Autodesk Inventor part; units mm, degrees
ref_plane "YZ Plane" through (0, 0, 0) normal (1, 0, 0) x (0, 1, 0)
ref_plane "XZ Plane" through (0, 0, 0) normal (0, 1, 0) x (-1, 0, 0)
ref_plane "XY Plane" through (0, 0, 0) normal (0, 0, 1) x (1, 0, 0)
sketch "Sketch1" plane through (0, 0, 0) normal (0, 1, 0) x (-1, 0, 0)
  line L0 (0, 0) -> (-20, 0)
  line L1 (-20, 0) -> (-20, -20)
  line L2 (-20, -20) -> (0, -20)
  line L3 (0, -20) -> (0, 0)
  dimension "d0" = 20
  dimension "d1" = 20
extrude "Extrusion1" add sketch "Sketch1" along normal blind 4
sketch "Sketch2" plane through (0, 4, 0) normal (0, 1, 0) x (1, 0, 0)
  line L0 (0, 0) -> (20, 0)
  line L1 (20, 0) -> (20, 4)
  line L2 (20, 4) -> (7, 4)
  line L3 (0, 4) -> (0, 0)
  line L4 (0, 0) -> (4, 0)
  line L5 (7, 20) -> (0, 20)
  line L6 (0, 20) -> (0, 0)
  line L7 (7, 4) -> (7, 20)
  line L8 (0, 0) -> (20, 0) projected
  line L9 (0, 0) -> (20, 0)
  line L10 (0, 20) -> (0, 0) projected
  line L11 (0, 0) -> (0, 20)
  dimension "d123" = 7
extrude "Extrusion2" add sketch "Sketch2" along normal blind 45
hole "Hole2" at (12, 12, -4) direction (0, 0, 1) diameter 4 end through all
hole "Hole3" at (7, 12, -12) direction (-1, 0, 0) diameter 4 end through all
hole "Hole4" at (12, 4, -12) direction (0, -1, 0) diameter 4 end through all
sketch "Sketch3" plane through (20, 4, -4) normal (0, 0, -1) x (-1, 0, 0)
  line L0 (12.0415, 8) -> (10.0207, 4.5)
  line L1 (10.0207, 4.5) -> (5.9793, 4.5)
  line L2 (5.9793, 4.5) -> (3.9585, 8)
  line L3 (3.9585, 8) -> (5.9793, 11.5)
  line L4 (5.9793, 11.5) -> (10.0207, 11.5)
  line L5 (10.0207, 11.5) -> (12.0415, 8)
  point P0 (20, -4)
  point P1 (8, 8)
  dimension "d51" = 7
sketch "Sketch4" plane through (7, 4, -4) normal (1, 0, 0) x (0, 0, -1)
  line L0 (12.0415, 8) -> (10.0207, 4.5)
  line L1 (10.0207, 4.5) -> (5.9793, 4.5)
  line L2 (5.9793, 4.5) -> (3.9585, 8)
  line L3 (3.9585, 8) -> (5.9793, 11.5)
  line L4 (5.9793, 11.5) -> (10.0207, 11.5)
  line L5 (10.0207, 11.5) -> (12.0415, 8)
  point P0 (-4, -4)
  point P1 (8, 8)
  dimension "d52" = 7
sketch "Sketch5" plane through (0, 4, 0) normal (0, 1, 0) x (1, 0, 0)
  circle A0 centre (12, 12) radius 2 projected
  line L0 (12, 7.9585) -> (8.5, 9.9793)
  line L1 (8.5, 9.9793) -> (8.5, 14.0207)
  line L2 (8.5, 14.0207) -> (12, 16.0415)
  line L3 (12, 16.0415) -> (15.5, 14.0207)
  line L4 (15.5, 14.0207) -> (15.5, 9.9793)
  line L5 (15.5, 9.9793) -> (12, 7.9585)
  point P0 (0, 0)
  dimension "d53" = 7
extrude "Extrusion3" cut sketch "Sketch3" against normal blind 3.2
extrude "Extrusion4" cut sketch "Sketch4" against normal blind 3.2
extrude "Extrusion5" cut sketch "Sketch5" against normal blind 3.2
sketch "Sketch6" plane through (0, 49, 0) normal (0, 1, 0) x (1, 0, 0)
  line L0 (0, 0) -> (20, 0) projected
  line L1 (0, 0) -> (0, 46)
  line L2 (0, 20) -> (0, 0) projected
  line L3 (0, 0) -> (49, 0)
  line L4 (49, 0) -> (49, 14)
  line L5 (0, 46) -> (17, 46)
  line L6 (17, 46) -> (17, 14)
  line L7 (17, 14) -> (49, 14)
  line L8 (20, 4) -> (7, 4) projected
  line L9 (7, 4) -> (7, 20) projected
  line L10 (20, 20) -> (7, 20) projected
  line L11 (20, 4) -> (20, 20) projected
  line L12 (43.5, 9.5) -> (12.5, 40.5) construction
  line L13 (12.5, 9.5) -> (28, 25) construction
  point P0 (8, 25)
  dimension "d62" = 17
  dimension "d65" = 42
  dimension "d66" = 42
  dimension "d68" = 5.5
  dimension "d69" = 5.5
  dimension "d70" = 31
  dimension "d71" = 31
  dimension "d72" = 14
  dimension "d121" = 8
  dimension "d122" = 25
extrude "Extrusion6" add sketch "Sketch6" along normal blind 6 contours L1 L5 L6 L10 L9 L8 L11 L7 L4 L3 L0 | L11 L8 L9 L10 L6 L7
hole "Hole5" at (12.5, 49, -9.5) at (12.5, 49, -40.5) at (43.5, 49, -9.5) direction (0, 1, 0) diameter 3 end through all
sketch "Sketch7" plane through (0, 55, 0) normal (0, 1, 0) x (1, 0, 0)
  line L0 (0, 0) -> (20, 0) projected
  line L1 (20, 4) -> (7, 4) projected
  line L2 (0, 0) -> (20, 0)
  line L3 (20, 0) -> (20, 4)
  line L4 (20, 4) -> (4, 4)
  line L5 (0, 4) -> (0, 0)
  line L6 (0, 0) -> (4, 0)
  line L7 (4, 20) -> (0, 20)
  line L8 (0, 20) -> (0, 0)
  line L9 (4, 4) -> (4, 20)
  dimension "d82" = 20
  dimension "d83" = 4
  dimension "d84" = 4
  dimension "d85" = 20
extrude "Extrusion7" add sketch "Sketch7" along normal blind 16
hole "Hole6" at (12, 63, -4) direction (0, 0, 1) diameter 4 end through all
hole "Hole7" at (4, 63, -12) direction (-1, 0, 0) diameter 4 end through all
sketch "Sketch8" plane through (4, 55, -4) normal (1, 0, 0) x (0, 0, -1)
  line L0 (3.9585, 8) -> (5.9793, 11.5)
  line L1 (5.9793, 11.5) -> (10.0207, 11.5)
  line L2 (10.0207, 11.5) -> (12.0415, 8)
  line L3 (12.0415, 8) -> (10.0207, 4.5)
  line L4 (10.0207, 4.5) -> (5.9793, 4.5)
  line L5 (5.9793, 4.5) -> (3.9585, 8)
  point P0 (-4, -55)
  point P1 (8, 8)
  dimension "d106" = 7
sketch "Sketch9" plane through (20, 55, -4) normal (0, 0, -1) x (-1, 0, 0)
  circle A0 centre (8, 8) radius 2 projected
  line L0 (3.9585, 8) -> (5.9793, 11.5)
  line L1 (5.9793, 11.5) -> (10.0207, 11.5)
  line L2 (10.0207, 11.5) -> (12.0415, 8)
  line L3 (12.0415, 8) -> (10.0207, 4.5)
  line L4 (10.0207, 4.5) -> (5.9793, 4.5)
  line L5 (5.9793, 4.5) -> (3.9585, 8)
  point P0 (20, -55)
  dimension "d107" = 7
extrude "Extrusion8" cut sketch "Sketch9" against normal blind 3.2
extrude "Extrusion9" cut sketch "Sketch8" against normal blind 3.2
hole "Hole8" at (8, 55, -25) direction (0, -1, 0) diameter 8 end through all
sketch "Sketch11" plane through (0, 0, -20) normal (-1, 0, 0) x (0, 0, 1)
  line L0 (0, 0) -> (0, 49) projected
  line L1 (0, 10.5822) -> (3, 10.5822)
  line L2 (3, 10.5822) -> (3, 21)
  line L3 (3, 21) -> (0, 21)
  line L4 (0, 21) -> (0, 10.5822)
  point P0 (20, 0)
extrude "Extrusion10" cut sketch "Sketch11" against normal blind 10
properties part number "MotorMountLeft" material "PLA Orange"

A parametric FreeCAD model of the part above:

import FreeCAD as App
import Part
import Sketcher
from FreeCAD import Vector
Q = App.Units.Quantity

doc = App.newDocument("Part")
body = doc.addObject("PartDesign::Body", "Body")

sketch1 = body.newObject("Sketcher::SketchObject", "Sketch")
sketch1.AttachmentSupport = (doc.getObject("XZ_Plane"), [""])
sketch1.MapMode = "FlatFace"
sketch1.addGeometry(Part.LineSegment(Vector(0, -20, 0), Vector(0, 0, 0)), False)
sketch1.addGeometry(Part.LineSegment(Vector(0, 0, 0), Vector(20, 0, 0)), False)
sketch1.addGeometry(Part.LineSegment(Vector(20, 0, 0), Vector(20, -20, 0)), False)
sketch1.addGeometry(Part.LineSegment(Vector(20, -20, 0), Vector(0, -20, 0)), False)
sketch1.addConstraint(Sketcher.Constraint("Coincident", 0, 2, 1, 1))
sketch1.addConstraint(Sketcher.Constraint("Coincident", 1, 2, 2, 1))
sketch1.addConstraint(Sketcher.Constraint("Coincident", 2, 2, 3, 1))
sketch1.addConstraint(Sketcher.Constraint("Coincident", 3, 2, 0, 1))
sketch1.addConstraint(Sketcher.Constraint("Vertical", 0))
sketch1.addConstraint(Sketcher.Constraint("Horizontal", 1))
sketch1.addConstraint(Sketcher.Constraint("Vertical", 2))
sketch1.addConstraint(Sketcher.Constraint("Horizontal", 3))
sketch1.addConstraint(Sketcher.Constraint("Coincident", 0, 2, -1, 1))
sketch1.addConstraint(Sketcher.Constraint("Equal", 3, 0))
sketch1.addConstraint(Sketcher.Constraint("DistanceX", 1, 1, 1, 2, Q("20 mm")))
pad1 = body.newObject("PartDesign::Pad", "Pad")
pad1.Profile = sketch1
pad1.Length = 4
pad1.Reversed = True

sketch2 = body.newObject("Sketcher::SketchObject", "Sketch001")
sketch2.AttachmentSupport = (doc.getObject("XZ_Plane"), [""])
sketch2.MapMode = "FlatFace"
sketch2.AttachmentOffset = App.Placement(Vector(0, 0, -4), App.Rotation())
sketch2.addGeometry(Part.LineSegment(Vector(0, -20, 0), Vector(0, 0, 0)), False)
sketch2.addGeometry(Part.LineSegment(Vector(0, 0, 0), Vector(20, 0, 0)), False)
sketch2.addGeometry(Part.LineSegment(Vector(20, 0, 0), Vector(20, -4, 0)), False)
sketch2.addGeometry(Part.LineSegment(Vector(20, -4, 0), Vector(7, -4, 0)), False)
sketch2.addGeometry(Part.LineSegment(Vector(7, -4, 0), Vector(7, -20, 0)), False)
sketch2.addGeometry(Part.LineSegment(Vector(7, -20, 0), Vector(0, -20, 0)), False)
sketch2.addConstraint(Sketcher.Constraint("Coincident", 0, 2, 1, 1))
sketch2.addConstraint(Sketcher.Constraint("Coincident", 1, 2, 2, 1))
sketch2.addConstraint(Sketcher.Constraint("Coincident", 2, 2, 3, 1))
sketch2.addConstraint(Sketcher.Constraint("Coincident", 3, 2, 4, 1))
sketch2.addConstraint(Sketcher.Constraint("Coincident", 4, 2, 5, 1))
sketch2.addConstraint(Sketcher.Constraint("Coincident", 5, 2, 0, 1))
sketch2.addConstraint(Sketcher.Constraint("Vertical", 0))
sketch2.addConstraint(Sketcher.Constraint("Horizontal", 1))
sketch2.addConstraint(Sketcher.Constraint("Vertical", 2))
sketch2.addConstraint(Sketcher.Constraint("Horizontal", 3))
sketch2.addConstraint(Sketcher.Constraint("Vertical", 4))
sketch2.addConstraint(Sketcher.Constraint("Horizontal", 5))
sketch2.addConstraint(Sketcher.Constraint("Coincident", 0, 2, -1, 1))
sketch2.addConstraint(Sketcher.Constraint("Equal", 1, 0))
sketch2.addConstraint(Sketcher.Constraint("DistanceX", 5, 2, 5, 1, Q("7 mm")))
sketch2.addConstraint(Sketcher.Constraint("DistanceX", 1, 1, 1, 2, Q("20 mm")))
sketch2.addConstraint(Sketcher.Constraint("DistanceY", 2, 2, 2, 1, Q("4 mm")))
pad2 = body.newObject("PartDesign::Pad", "Pad001")
pad2.Profile = sketch2
pad2.Length = 45
pad2.Reversed = True

sketch3 = body.newObject("Sketcher::SketchObject", "Sketch002")
sketch3.AttachmentSupport = (doc.getObject("XY_Plane"), [""])
sketch3.MapMode = "FlatFace"
sketch3.AttachmentOffset = App.Placement(Vector(0, 0, -4), App.Rotation())
sketch3.addGeometry(Part.Circle(Vector(12, 12, 0), Vector(0, 0, 1), 2), False)
sketch3.addConstraint(Sketcher.Constraint("Diameter", 0, Q("4 mm")))
sketch3.addConstraint(Sketcher.Constraint("DistanceX", -1, 1, 0, 3, Q("12 mm")))
sketch3.addConstraint(Sketcher.Constraint("DistanceY", -1, 1, 0, 3, Q("12 mm")))
doc.recompute()
hole = body.newObject("PartDesign::Hole", "Hole")
hole.Profile = sketch3
hole.ThreadType = "None"
hole.Diameter = 4
hole.DepthType = "ThroughAll"
hole.Reversed = True

sketch4 = body.newObject("Sketcher::SketchObject", "Sketch003")
sketch4.AttachmentSupport = (doc.getObject("YZ_Plane"), [""])
sketch4.MapMode = "FlatFace"
sketch4.AttachmentOffset = App.Placement(Vector(0, 0, 7), App.Rotation())
sketch4.addGeometry(Part.Circle(Vector(12, -12, 0), Vector(0, 0, 1), 2), False)
sketch4.addConstraint(Sketcher.Constraint("Diameter", 0, Q("4 mm")))
sketch4.addConstraint(Sketcher.Constraint("DistanceX", -1, 1, 0, 3, Q("12 mm")))
sketch4.addConstraint(Sketcher.Constraint("DistanceY", 0, 3, -1, 1, Q("12 mm")))
doc.recompute()
hole2 = body.newObject("PartDesign::Hole", "Hole001")
hole2.Profile = sketch4
hole2.ThreadType = "None"
hole2.Diameter = 4
hole2.DepthType = "ThroughAll"

sketch5 = body.newObject("Sketcher::SketchObject", "Sketch004")
sketch5.AttachmentSupport = (doc.getObject("XZ_Plane"), [""])
sketch5.MapMode = "FlatFace"
sketch5.AttachmentOffset = App.Placement(Vector(0, 0, -4), App.Rotation())
sketch5.addGeometry(Part.Circle(Vector(12, -12, 0), Vector(0, 0, 1), 2), False)
sketch5.addConstraint(Sketcher.Constraint("Diameter", 0, Q("4 mm")))
sketch5.addConstraint(Sketcher.Constraint("DistanceX", -1, 1, 0, 3, Q("12 mm")))
sketch5.addConstraint(Sketcher.Constraint("DistanceY", 0, 3, -1, 1, Q("12 mm")))
doc.recompute()
hole3 = body.newObject("PartDesign::Hole", "Hole002")
hole3.Profile = sketch5
hole3.ThreadType = "None"
hole3.Diameter = 4
hole3.DepthType = "ThroughAll"
hole3.Reversed = True

sketch6 = body.newObject("Sketcher::SketchObject", "Sketch005")
sketch6.AttachmentSupport = (doc.getObject("XY_Plane"), [""])
sketch6.MapMode = "FlatFace"
sketch6.AttachmentOffset = App.Placement(Vector(0, 0, -4), App.Rotation())
sketch6.addGeometry(Part.LineSegment(Vector(9.9793, 8.5, 0), Vector(7.9585, 12, 0)), False)
sketch6.addGeometry(Part.LineSegment(Vector(7.9585, 12, 0), Vector(9.9793, 15.5, 0)), False)
sketch6.addGeometry(Part.LineSegment(Vector(9.9793, 15.5, 0), Vector(14.0207, 15.5, 0)), False)
sketch6.addGeometry(Part.LineSegment(Vector(14.0207, 15.5, 0), Vector(16.0415, 12, 0)), False)
sketch6.addGeometry(Part.LineSegment(Vector(16.0415, 12, 0), Vector(14.0207, 8.5, 0)), False)
sketch6.addGeometry(Part.LineSegment(Vector(14.0207, 8.5, 0), Vector(9.9793, 8.5, 0)), False)
sketch6.addConstraint(Sketcher.Constraint("Coincident", 0, 2, 1, 1))
sketch6.addConstraint(Sketcher.Constraint("Coincident", 1, 2, 2, 1))
sketch6.addConstraint(Sketcher.Constraint("Coincident", 2, 2, 3, 1))
sketch6.addConstraint(Sketcher.Constraint("Coincident", 3, 2, 4, 1))
sketch6.addConstraint(Sketcher.Constraint("Coincident", 4, 2, 5, 1))
sketch6.addConstraint(Sketcher.Constraint("Coincident", 5, 2, 0, 1))
sketch6.addConstraint(Sketcher.Constraint("Horizontal", 2))
sketch6.addConstraint(Sketcher.Constraint("Horizontal", 5))
sketch6.addConstraint(Sketcher.Constraint("Parallel", 0, 3))
sketch6.addConstraint(Sketcher.Constraint("Parallel", 1, 4))
sketch6.addConstraint(Sketcher.Constraint("Horizontal", 0, 2, 3, 2))
sketch6.addConstraint(Sketcher.Constraint("Vertical", 2, 2, 4, 2))
sketch6.addConstraint(Sketcher.Constraint("Vertical", 1, 2, 5, 2))
sketch6.addConstraint(Sketcher.Constraint("DistanceY", 4, 2, 2, 2, Q("7 mm")))
sketch6.addConstraint(Sketcher.Constraint("Angle", 0, Q("120.001 deg")))
sketch6.addConstraint(Sketcher.Constraint("DistanceY", -1, 1, 0, 2, Q("12 mm")))
sketch6.addConstraint(Sketcher.Constraint("DistanceX", 2, 1, 2, 2, Q("4.0414 mm")))
sketch6.addConstraint(Sketcher.Constraint("DistanceX", -1, 1, 0, 2, Q("7.9585 mm")))
pocket1 = body.newObject("PartDesign::Pocket", "Pocket")
pocket1.Profile = sketch6
pocket1.Length = 3.2
pocket1.Reversed = True

sketch7 = body.newObject("Sketcher::SketchObject", "Sketch006")
sketch7.AttachmentSupport = (doc.getObject("YZ_Plane"), [""])
sketch7.MapMode = "FlatFace"
sketch7.AttachmentOffset = App.Placement(Vector(0, 0, 7), App.Rotation())
sketch7.addGeometry(Part.LineSegment(Vector(8.5, -14.0207, 0), Vector(12, -16.0415, 0)), False)
sketch7.addGeometry(Part.LineSegment(Vector(12, -16.0415, 0), Vector(15.5, -14.0207, 0)), False)
sketch7.addGeometry(Part.LineSegment(Vector(15.5, -14.0207, 0), Vector(15.5, -9.9793, 0)), False)
sketch7.addGeometry(Part.LineSegment(Vector(15.5, -9.9793, 0), Vector(12, -7.9585, 0)), False)
sketch7.addGeometry(Part.LineSegment(Vector(12, -7.9585, 0), Vector(8.5, -9.9793, 0)), False)
sketch7.addGeometry(Part.LineSegment(Vector(8.5, -9.9793, 0), Vector(8.5, -14.0207, 0)), False)
sketch7.addConstraint(Sketcher.Constraint("Coincident", 0, 2, 1, 1))
sketch7.addConstraint(Sketcher.Constraint("Coincident", 1, 2, 2, 1))
sketch7.addConstraint(Sketcher.Constraint("Coincident", 2, 2, 3, 1))
sketch7.addConstraint(Sketcher.Constraint("Coincident", 3, 2, 4, 1))
sketch7.addConstraint(Sketcher.Constraint("Coincident", 4, 2, 5, 1))
sketch7.addConstraint(Sketcher.Constraint("Coincident", 5, 2, 0, 1))
sketch7.addConstraint(Sketcher.Constraint("Vertical", 2))
sketch7.addConstraint(Sketcher.Constraint("Vertical", 5))
sketch7.addConstraint(Sketcher.Constraint("Parallel", 0, 3))
sketch7.addConstraint(Sketcher.Constraint("Parallel", 1, 4))
sketch7.addConstraint(Sketcher.Constraint("Horizontal", 2, 2, 4, 2))
sketch7.addConstraint(Sketcher.Constraint("Horizontal", 1, 2, 5, 2))
sketch7.addConstraint(Sketcher.Constraint("Vertical", 0, 2, 3, 2))
sketch7.addConstraint(Sketcher.Constraint("DistanceX", 4, 2, 2, 2, Q("7 mm")))
sketch7.addConstraint(Sketcher.Constraint("Angle", 0, Q("-30.001 deg")))
sketch7.addConstraint(Sketcher.Constraint("DistanceX", -1, 1, 0, 2, Q("12 mm")))
sketch7.addConstraint(Sketcher.Constraint("DistanceY", 2, 1, 2, 2, Q("4.0414 mm")))
sketch7.addConstraint(Sketcher.Constraint("DistanceY", 0, 2, -1, 1, Q("16.0415 mm")))
pocket2 = body.newObject("PartDesign::Pocket", "Pocket001")
pocket2.Profile = sketch7
pocket2.Length = 3.2

sketch8 = body.newObject("Sketcher::SketchObject", "Sketch007")
sketch8.AttachmentSupport = (doc.getObject("XZ_Plane"), [""])
sketch8.MapMode = "FlatFace"
sketch8.AttachmentOffset = App.Placement(Vector(0, 0, -4), App.Rotation())
sketch8.addGeometry(Part.LineSegment(Vector(8.5, -9.9793, 0), Vector(12, -7.9585, 0)), False)
sketch8.addGeometry(Part.LineSegment(Vector(12, -7.9585, 0), Vector(15.5, -9.9793, 0)), False)
sketch8.addGeometry(Part.LineSegment(Vector(15.5, -9.9793, 0), Vector(15.5, -14.0207, 0)), False)
sketch8.addGeometry(Part.LineSegment(Vector(15.5, -14.0207, 0), Vector(12, -16.0415, 0)), False)
sketch8.addGeometry(Part.LineSegment(Vector(12, -16.0415, 0), Vector(8.5, -14.0207, 0)), False)
sketch8.addGeometry(Part.LineSegment(Vector(8.5, -14.0207, 0), Vector(8.5, -9.9793, 0)), False)
sketch8.addGeometry(Part.Circle(Vector(12, -12, 0), Vector(0, 0, 1), 2), False)
sketch8.addConstraint(Sketcher.Constraint("Coincident", 0, 2, 1, 1))
sketch8.addConstraint(Sketcher.Constraint("Coincident", 1, 2, 2, 1))
sketch8.addConstraint(Sketcher.Constraint("Coincident", 2, 2, 3, 1))
sketch8.addConstraint(Sketcher.Constraint("Coincident", 3, 2, 4, 1))
sketch8.addConstraint(Sketcher.Constraint("Coincident", 4, 2, 5, 1))
sketch8.addConstraint(Sketcher.Constraint("Coincident", 5, 2, 0, 1))
sketch8.addConstraint(Sketcher.Constraint("Vertical", 2))
sketch8.addConstraint(Sketcher.Constraint("Vertical", 5))
sketch8.addConstraint(Sketcher.Constraint("Parallel", 0, 3))
sketch8.addConstraint(Sketcher.Constraint("Parallel", 1, 4))
sketch8.addConstraint(Sketcher.Constraint("Horizontal", 2, 2, 4, 2))
sketch8.addConstraint(Sketcher.Constraint("Horizontal", 1, 2, 5, 2))
sketch8.addConstraint(Sketcher.Constraint("Vertical", 6, 3, 0, 2))
sketch8.addConstraint(Sketcher.Constraint("Vertical", 0, 2, 3, 2))
sketch8.addConstraint(Sketcher.Constraint("Diameter", 6, Q("4 mm")))
sketch8.addConstraint(Sketcher.Constraint("DistanceX", 4, 2, 2, 2, Q("7 mm")))
sketch8.addConstraint(Sketcher.Constraint("Angle", 0, Q("30.001 deg")))
sketch8.addConstraint(Sketcher.Constraint("DistanceX", -1, 1, 6, 3, Q("12 mm")))
sketch8.addConstraint(Sketcher.Constraint("DistanceY", 6, 3, -1, 1, Q("12 mm")))
sketch8.addConstraint(Sketcher.Constraint("DistanceY", 2, 2, 2, 1, Q("4.0414 mm")))
sketch8.addConstraint(Sketcher.Constraint("DistanceY", 0, 2, -1, 1, Q("7.9585 mm")))
pocket3 = body.newObject("PartDesign::Pocket", "Pocket002")
pocket3.Profile = sketch8
pocket3.Length = 3.2
pocket3.Reversed = True

sketch9 = body.newObject("Sketcher::SketchObject", "Sketch008")
sketch9.AttachmentSupport = (doc.getObject("XZ_Plane"), [""])
sketch9.MapMode = "FlatFace"
sketch9.AttachmentOffset = App.Placement(Vector(0, 0, -49), App.Rotation())
sketch9.addGeometry(Part.LineSegment(Vector(0, 0, 0), Vector(49, 0, 0)), False)
sketch9.addGeometry(Part.LineSegment(Vector(49, 0, 0), Vector(49, -14, 0)), False)
sketch9.addGeometry(Part.LineSegment(Vector(49, -14, 0), Vector(17, -14, 0)), False)
sketch9.addGeometry(Part.LineSegment(Vector(17, -14, 0), Vector(17, -46, 0)), False)
sketch9.addGeometry(Part.LineSegment(Vector(17, -46, 0), Vector(0, -46, 0)), False)
sketch9.addGeometry(Part.LineSegment(Vector(0, -46, 0), Vector(0, 0, 0)), False)
sketch9.addConstraint(Sketcher.Constraint("Coincident", 0, 2, 1, 1))
sketch9.addConstraint(Sketcher.Constraint("Coincident", 1, 2, 2, 1))
sketch9.addConstraint(Sketcher.Constraint("Coincident", 2, 2, 3, 1))
sketch9.addConstraint(Sketcher.Constraint("Coincident", 3, 2, 4, 1))
sketch9.addConstraint(Sketcher.Constraint("Coincident", 4, 2, 5, 1))
sketch9.addConstraint(Sketcher.Constraint("Coincident", 5, 2, 0, 1))
sketch9.addConstraint(Sketcher.Constraint("Horizontal", 0))
sketch9.addConstraint(Sketcher.Constraint("Vertical", 1))
sketch9.addConstraint(Sketcher.Constraint("Horizontal", 2))
sketch9.addConstraint(Sketcher.Constraint("Vertical", 3))
sketch9.addConstraint(Sketcher.Constraint("Horizontal", 4))
sketch9.addConstraint(Sketcher.Constraint("Vertical", 5))
sketch9.addConstraint(Sketcher.Constraint("Coincident", 5, 2, -1, 1))
sketch9.addConstraint(Sketcher.Constraint("Equal", 2, 3))
sketch9.addConstraint(Sketcher.Constraint("DistanceX", 4, 2, 4, 1, Q("17 mm")))
sketch9.addConstraint(Sketcher.Constraint("DistanceY", 1, 2, 1, 1, Q("14 mm")))
sketch9.addConstraint(Sketcher.Constraint("DistanceX", 0, 1, 0, 2, Q("49 mm")))
pad3 = body.newObject("PartDesign::Pad", "Pad002")
pad3.Profile = sketch9
pad3.Length = 6
pad3.Reversed = True

sketch10 = body.newObject("Sketcher::SketchObject", "Sketch009")
sketch10.AttachmentSupport = (doc.getObject("XZ_Plane"), [""])
sketch10.MapMode = "FlatFace"
sketch10.AttachmentOffset = App.Placement(Vector(0, 0, -49), App.Rotation())
sketch10.addGeometry(Part.Circle(Vector(12.5, -9.5, 0), Vector(0, 0, 1), 1.5), False)
sketch10.addGeometry(Part.Circle(Vector(12.5, -40.5, 0), Vector(0, 0, 1), 1.5), False)
sketch10.addGeometry(Part.Circle(Vector(43.5, -9.5, 0), Vector(0, 0, 1), 1.5), False)
sketch10.addConstraint(Sketcher.Constraint("Equal", 0, 1))
sketch10.addConstraint(Sketcher.Constraint("Equal", 1, 2))
sketch10.addConstraint(Sketcher.Constraint("Horizontal", 0, 3, 2, 3))
sketch10.addConstraint(Sketcher.Constraint("Vertical", 0, 3, 1, 3))
sketch10.addConstraint(Sketcher.Constraint("Diameter", 0, Q("3 mm")))
sketch10.addConstraint(Sketcher.Constraint("DistanceY", 1, 3, 0, 3, Q("31 mm")))
sketch10.addConstraint(Sketcher.Constraint("DistanceX", 0, 3, 2, 3, Q("31 mm")))
sketch10.addConstraint(Sketcher.Constraint("DistanceX", -1, 1, 0, 3, Q("12.5 mm")))
sketch10.addConstraint(Sketcher.Constraint("DistanceY", 0, 3, -1, 1, Q("9.5 mm")))
doc.recompute()
hole4 = body.newObject("PartDesign::Hole", "Hole003")
hole4.Profile = sketch10
hole4.ThreadType = "None"
hole4.Diameter = 3
hole4.DepthType = "ThroughAll"

sketch11 = body.newObject("Sketcher::SketchObject", "Sketch010")
sketch11.AttachmentSupport = (doc.getObject("XZ_Plane"), [""])
sketch11.MapMode = "FlatFace"
sketch11.AttachmentOffset = App.Placement(Vector(0, 0, -55), App.Rotation())
sketch11.addGeometry(Part.LineSegment(Vector(0, -20, 0), Vector(0, 0, 0)), False)
sketch11.addGeometry(Part.LineSegment(Vector(0, 0, 0), Vector(20, 0, 0)), False)
sketch11.addGeometry(Part.LineSegment(Vector(20, 0, 0), Vector(20, -4, 0)), False)
sketch11.addGeometry(Part.LineSegment(Vector(20, -4, 0), Vector(4, -4, 0)), False)
sketch11.addGeometry(Part.LineSegment(Vector(4, -4, 0), Vector(4, -20, 0)), False)
sketch11.addGeometry(Part.LineSegment(Vector(4, -20, 0), Vector(0, -20, 0)), False)
sketch11.addConstraint(Sketcher.Constraint("Coincident", 0, 2, 1, 1))
sketch11.addConstraint(Sketcher.Constraint("Coincident", 1, 2, 2, 1))
sketch11.addConstraint(Sketcher.Constraint("Coincident", 2, 2, 3, 1))
sketch11.addConstraint(Sketcher.Constraint("Coincident", 3, 2, 4, 1))
sketch11.addConstraint(Sketcher.Constraint("Coincident", 4, 2, 5, 1))
sketch11.addConstraint(Sketcher.Constraint("Coincident", 5, 2, 0, 1))
sketch11.addConstraint(Sketcher.Constraint("Vertical", 0))
sketch11.addConstraint(Sketcher.Constraint("Horizontal", 1))
sketch11.addConstraint(Sketcher.Constraint("Vertical", 2))
sketch11.addConstraint(Sketcher.Constraint("Horizontal", 3))
sketch11.addConstraint(Sketcher.Constraint("Vertical", 4))
sketch11.addConstraint(Sketcher.Constraint("Horizontal", 5))
sketch11.addConstraint(Sketcher.Constraint("Coincident", 0, 2, -1, 1))
sketch11.addConstraint(Sketcher.Constraint("Equal", 1, 0))
sketch11.addConstraint(Sketcher.Constraint("Equal", 5, 2))
sketch11.addConstraint(Sketcher.Constraint("DistanceX", 1, 1, 1, 2, Q("20 mm")))
sketch11.addConstraint(Sketcher.Constraint("DistanceX", 5, 2, 5, 1, Q("4 mm")))
pad4 = body.newObject("PartDesign::Pad", "Pad003")
pad4.Profile = sketch11
pad4.Length = 16
pad4.Reversed = True

sketch12 = body.newObject("Sketcher::SketchObject", "Sketch011")
sketch12.AttachmentSupport = (doc.getObject("XY_Plane"), [""])
sketch12.MapMode = "FlatFace"
sketch12.AttachmentOffset = App.Placement(Vector(0, 0, -4), App.Rotation())
sketch12.addGeometry(Part.Circle(Vector(12, 63, 0), Vector(0, 0, 1), 2), False)
sketch12.addConstraint(Sketcher.Constraint("Diameter", 0, Q("4 mm")))
sketch12.addConstraint(Sketcher.Constraint("DistanceX", -1, 1, 0, 3, Q("12 mm")))
sketch12.addConstraint(Sketcher.Constraint("DistanceY", -1, 1, 0, 3, Q("63 mm")))
doc.recompute()
hole5 = body.newObject("PartDesign::Hole", "Hole004")
hole5.Profile = sketch12
hole5.ThreadType = "None"
hole5.Diameter = 4
hole5.DepthType = "ThroughAll"
hole5.Reversed = True

sketch13 = body.newObject("Sketcher::SketchObject", "Sketch012")
sketch13.AttachmentSupport = (doc.getObject("YZ_Plane"), [""])
sketch13.MapMode = "FlatFace"
sketch13.AttachmentOffset = App.Placement(Vector(0, 0, 4), App.Rotation())
sketch13.addGeometry(Part.Circle(Vector(63, -12, 0), Vector(0, 0, 1), 2), False)
sketch13.addConstraint(Sketcher.Constraint("Diameter", 0, Q("4 mm")))
sketch13.addConstraint(Sketcher.Constraint("DistanceX", -1, 1, 0, 3, Q("63 mm")))
sketch13.addConstraint(Sketcher.Constraint("DistanceY", 0, 3, -1, 1, Q("12 mm")))
doc.recompute()
hole6 = body.newObject("PartDesign::Hole", "Hole005")
hole6.Profile = sketch13
hole6.ThreadType = "None"
hole6.Diameter = 4
hole6.DepthType = "ThroughAll"

sketch14 = body.newObject("Sketcher::SketchObject", "Sketch013")
sketch14.AttachmentSupport = (doc.getObject("XY_Plane"), [""])
sketch14.MapMode = "FlatFace"
sketch14.AttachmentOffset = App.Placement(Vector(0, 0, -4), App.Rotation())
sketch14.addGeometry(Part.LineSegment(Vector(14.0207, 66.5, 0), Vector(16.0415, 63, 0)), False)
sketch14.addGeometry(Part.LineSegment(Vector(16.0415, 63, 0), Vector(14.0207, 59.5, 0)), False)
sketch14.addGeometry(Part.LineSegment(Vector(14.0207, 59.5, 0), Vector(9.9793, 59.5, 0)), False)
sketch14.addGeometry(Part.LineSegment(Vector(9.9793, 59.5, 0), Vector(7.9585, 63, 0)), False)
sketch14.addGeometry(Part.LineSegment(Vector(7.9585, 63, 0), Vector(9.9793, 66.5, 0)), False)
sketch14.addGeometry(Part.LineSegment(Vector(9.9793, 66.5, 0), Vector(14.0207, 66.5, 0)), False)
sketch14.addGeometry(Part.Circle(Vector(12, 63, 0), Vector(0, 0, 1), 2), False)
sketch14.addConstraint(Sketcher.Constraint("Coincident", 0, 2, 1, 1))
sketch14.addConstraint(Sketcher.Constraint("Coincident", 1, 2, 2, 1))
sketch14.addConstraint(Sketcher.Constraint("Coincident", 2, 2, 3, 1))
sketch14.addConstraint(Sketcher.Constraint("Coincident", 3, 2, 4, 1))
sketch14.addConstraint(Sketcher.Constraint("Coincident", 4, 2, 5, 1))
sketch14.addConstraint(Sketcher.Constraint("Coincident", 5, 2, 0, 1))
sketch14.addConstraint(Sketcher.Constraint("Horizontal", 2))
sketch14.addConstraint(Sketcher.Constraint("Horizontal", 5))
sketch14.addConstraint(Sketcher.Constraint("Parallel", 0, 3))
sketch14.addConstraint(Sketcher.Constraint("Parallel", 1, 4))
sketch14.addConstraint(Sketcher.Constraint("Horizontal", 6, 3, 0, 2))
sketch14.addConstraint(Sketcher.Constraint("Horizontal", 0, 2, 3, 2))
sketch14.addConstraint(Sketcher.Constraint("Vertical", 2, 2, 4, 2))
sketch14.addConstraint(Sketcher.Constraint("Vertical", 1, 2, 5, 2))
sketch14.addConstraint(Sketcher.Constraint("Diameter", 6, Q("4 mm")))
sketch14.addConstraint(Sketcher.Constraint("DistanceY", 2, 2, 4, 2, Q("7 mm")))
sketch14.addConstraint(Sketcher.Constraint("Angle", 0, Q("-59.999 deg")))
sketch14.addConstraint(Sketcher.Constraint("DistanceX", -1, 1, 6, 3, Q("12 mm")))
sketch14.addConstraint(Sketcher.Constraint("DistanceY", -1, 1, 6, 3, Q("63 mm")))
sketch14.addConstraint(Sketcher.Constraint("DistanceX", 2, 2, 2, 1, Q("4.0414 mm")))
sketch14.addConstraint(Sketcher.Constraint("DistanceX", -1, 1, 0, 2, Q("16.0415 mm")))
pocket4 = body.newObject("PartDesign::Pocket", "Pocket003")
pocket4.Profile = sketch14
pocket4.Length = 3.2
pocket4.Reversed = True

sketch15 = body.newObject("Sketcher::SketchObject", "Sketch014")
sketch15.AttachmentSupport = (doc.getObject("YZ_Plane"), [""])
sketch15.MapMode = "FlatFace"
sketch15.AttachmentOffset = App.Placement(Vector(0, 0, 4), App.Rotation())
sketch15.addGeometry(Part.LineSegment(Vector(66.5, -9.9793, 0), Vector(63, -7.9585, 0)), False)
sketch15.addGeometry(Part.LineSegment(Vector(63, -7.9585, 0), Vector(59.5, -9.9793, 0)), False)
sketch15.addGeometry(Part.LineSegment(Vector(59.5, -9.9793, 0), Vector(59.5, -14.0207, 0)), False)
sketch15.addGeometry(Part.LineSegment(Vector(59.5, -14.0207, 0), Vector(63, -16.0415, 0)), False)
sketch15.addGeometry(Part.LineSegment(Vector(63, -16.0415, 0), Vector(66.5, -14.0207, 0)), False)
sketch15.addGeometry(Part.LineSegment(Vector(66.5, -14.0207, 0), Vector(66.5, -9.9793, 0)), False)
sketch15.addConstraint(Sketcher.Constraint("Coincident", 0, 2, 1, 1))
sketch15.addConstraint(Sketcher.Constraint("Coincident", 1, 2, 2, 1))
sketch15.addConstraint(Sketcher.Constraint("Coincident", 2, 2, 3, 1))
sketch15.addConstraint(Sketcher.Constraint("Coincident", 3, 2, 4, 1))
sketch15.addConstraint(Sketcher.Constraint("Coincident", 4, 2, 5, 1))
sketch15.addConstraint(Sketcher.Constraint("Coincident", 5, 2, 0, 1))
sketch15.addConstraint(Sketcher.Constraint("Vertical", 2))
sketch15.addConstraint(Sketcher.Constraint("Vertical", 5))
sketch15.addConstraint(Sketcher.Constraint("Parallel", 0, 3))
sketch15.addConstraint(Sketcher.Constraint("Parallel", 1, 4))
sketch15.addConstraint(Sketcher.Constraint("Horizontal", 2, 2, 4, 2))
sketch15.addConstraint(Sketcher.Constraint("Horizontal", 1, 2, 5, 2))
sketch15.addConstraint(Sketcher.Constraint("Vertical", 0, 2, 3, 2))
sketch15.addConstraint(Sketcher.Constraint("DistanceX", 2, 2, 4, 2, Q("7 mm")))
sketch15.addConstraint(Sketcher.Constraint("Angle", 0, Q("149.999 deg")))
sketch15.addConstraint(Sketcher.Constraint("DistanceX", -1, 1, 0, 2, Q("63 mm")))
sketch15.addConstraint(Sketcher.Constraint("DistanceY", 2, 2, 2, 1, Q("4.0414 mm")))
sketch15.addConstraint(Sketcher.Constraint("DistanceY", 0, 2, -1, 1, Q("7.9585 mm")))
pocket5 = body.newObject("PartDesign::Pocket", "Pocket004")
pocket5.Profile = sketch15
pocket5.Length = 3.2

sketch16 = body.newObject("Sketcher::SketchObject", "Sketch015")
sketch16.AttachmentSupport = (doc.getObject("XZ_Plane"), [""])
sketch16.MapMode = "FlatFace"
sketch16.AttachmentOffset = App.Placement(Vector(0, 0, -55), App.Rotation())
sketch16.addGeometry(Part.Circle(Vector(8, -25, 0), Vector(0, 0, 1), 4), False)
sketch16.addConstraint(Sketcher.Constraint("Diameter", 0, Q("8 mm")))
sketch16.addConstraint(Sketcher.Constraint("DistanceX", -1, 1, 0, 3, Q("8 mm")))
sketch16.addConstraint(Sketcher.Constraint("DistanceY", 0, 3, -1, 1, Q("25 mm")))
doc.recompute()
hole7 = body.newObject("PartDesign::Hole", "Hole006")
hole7.Profile = sketch16
hole7.ThreadType = "None"
hole7.Diameter = 8
hole7.DepthType = "ThroughAll"
hole7.Reversed = True

sketch17 = body.newObject("Sketcher::SketchObject", "Sketch016")
sketch17.AttachmentSupport = (doc.getObject("YZ_Plane"), [""])
sketch17.MapMode = "FlatFace"
sketch17.addGeometry(Part.LineSegment(Vector(21, -20, 0), Vector(10.5822, -20, 0)), False)
sketch17.addGeometry(Part.LineSegment(Vector(10.5822, -20, 0), Vector(10.5822, -17, 0)), False)
sketch17.addGeometry(Part.LineSegment(Vector(10.5822, -17, 0), Vector(21, -17, 0)), False)
sketch17.addGeometry(Part.LineSegment(Vector(21, -17, 0), Vector(21, -20, 0)), False)
sketch17.addConstraint(Sketcher.Constraint("Coincident", 0, 2, 1, 1))
sketch17.addConstraint(Sketcher.Constraint("Coincident", 1, 2, 2, 1))
sketch17.addConstraint(Sketcher.Constraint("Coincident", 2, 2, 3, 1))
sketch17.addConstraint(Sketcher.Constraint("Coincident", 3, 2, 0, 1))
sketch17.addConstraint(Sketcher.Constraint("Horizontal", 0))
sketch17.addConstraint(Sketcher.Constraint("Vertical", 1))
sketch17.addConstraint(Sketcher.Constraint("Horizontal", 2))
sketch17.addConstraint(Sketcher.Constraint("Vertical", 3))
sketch17.addConstraint(Sketcher.Constraint("DistanceY", 1, 1, 1, 2, Q("3 mm")))
sketch17.addConstraint(Sketcher.Constraint("DistanceY", 0, 2, -1, 1, Q("20 mm")))
sketch17.addConstraint(Sketcher.Constraint("DistanceX", -1, 1, 2, 2, Q("21 mm")))
sketch17.addConstraint(Sketcher.Constraint("DistanceX", 0, 2, 0, 1, Q("10.4178 mm")))
pocket6 = body.newObject("PartDesign::Pocket", "Pocket005")
pocket6.Profile = sketch17
pocket6.Length = 10
pocket6.Reversed = True

doc.recompute()
